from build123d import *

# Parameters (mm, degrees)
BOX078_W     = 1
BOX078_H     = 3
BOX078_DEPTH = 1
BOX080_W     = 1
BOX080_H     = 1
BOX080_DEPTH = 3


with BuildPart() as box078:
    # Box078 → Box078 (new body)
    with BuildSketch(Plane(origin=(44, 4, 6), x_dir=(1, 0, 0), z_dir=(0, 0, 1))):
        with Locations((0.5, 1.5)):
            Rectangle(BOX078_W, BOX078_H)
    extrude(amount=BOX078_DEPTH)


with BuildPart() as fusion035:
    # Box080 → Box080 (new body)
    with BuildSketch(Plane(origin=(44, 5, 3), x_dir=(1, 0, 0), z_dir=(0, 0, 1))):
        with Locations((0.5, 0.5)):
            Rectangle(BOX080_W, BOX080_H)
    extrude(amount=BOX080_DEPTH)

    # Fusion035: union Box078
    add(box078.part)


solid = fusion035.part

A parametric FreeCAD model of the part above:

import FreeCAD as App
import Part
import Sketcher
from FreeCAD import Vector

doc = App.newDocument("Part")
body = doc.addObject("PartDesign::Body", "Body")

sketch1 = body.newObject("Sketcher::SketchObject", "Sketch")
sketch1.AttachmentSupport = (doc.getObject("XY_Plane"), [""])
sketch1.MapMode = "FlatFace"
sketch1.AttachmentOffset = App.Placement(Vector(0, 0, 6), App.Rotation())
sketch1.addGeometry([
    Part.LineSegment(Vector(44, 7, 0), Vector(44, 4, 0)),
    Part.LineSegment(Vector(44, 4, 0), Vector(45, 4, 0)),
    Part.LineSegment(Vector(45, 4, 0), Vector(45, 7, 0)),
    Part.LineSegment(Vector(45, 7, 0), Vector(44, 7, 0)),
], False)
sketch1.addConstraint([
    Sketcher.Constraint("Coincident", 0, 2, 1, 1),
    Sketcher.Constraint("Coincident", 1, 2, 2, 1),
    Sketcher.Constraint("Coincident", 2, 2, 3, 1),
    Sketcher.Constraint("Coincident", 3, 2, 0, 1),
    Sketcher.Constraint("Vertical", 0),
    Sketcher.Constraint("Horizontal", 1),
    Sketcher.Constraint("Vertical", 2),
    Sketcher.Constraint("Horizontal", 3),
    Sketcher.Constraint("DistanceX", 1, 1, 1, 2, 1.0),
    Sketcher.Constraint("DistanceY", 0, 2, 0, 1, 3.0),
    Sketcher.Constraint("DistanceX", -1, 1, 0, 2, 44.0),
    Sketcher.Constraint("DistanceY", -1, 1, 0, 2, 4.0),
])
pad1 = body.newObject("PartDesign::Pad", "Pad")
pad1.Profile = sketch1
pad1.Length = 1
body2 = doc.addObject("PartDesign::Body", "Body001")

sketch2 = body2.newObject("Sketcher::SketchObject", "Sketch001")
sketch2.AttachmentSupport = (doc.getObject("XY_Plane001"), [""])
sketch2.MapMode = "FlatFace"
sketch2.AttachmentOffset = App.Placement(Vector(0, 0, 3), App.Rotation())
sketch2.addGeometry([
    Part.LineSegment(Vector(44, 6, 0), Vector(44, 5, 0)),
    Part.LineSegment(Vector(44, 5, 0), Vector(45, 5, 0)),
    Part.LineSegment(Vector(45, 5, 0), Vector(45, 6, 0)),
    Part.LineSegment(Vector(45, 6, 0), Vector(44, 6, 0)),
], False)
sketch2.addConstraint([
    Sketcher.Constraint("Coincident", 0, 2, 1, 1),
    Sketcher.Constraint("Coincident", 1, 2, 2, 1),
    Sketcher.Constraint("Coincident", 2, 2, 3, 1),
    Sketcher.Constraint("Coincident", 3, 2, 0, 1),
    Sketcher.Constraint("Vertical", 0),
    Sketcher.Constraint("Horizontal", 1),
    Sketcher.Constraint("Vertical", 2),
    Sketcher.Constraint("Horizontal", 3),
    Sketcher.Constraint("Equal", 3, 0),
    Sketcher.Constraint("DistanceX", 1, 1, 1, 2, 1.0),
    Sketcher.Constraint("DistanceX", -1, 1, 0, 2, 44.0),
    Sketcher.Constraint("DistanceY", -1, 1, 0, 2, 5.0),
])
pad2 = body2.newObject("PartDesign::Pad", "Pad001")
pad2.Profile = sketch2
pad2.Length = 3
doc.recompute()

boolean = body2.newObject("PartDesign::Boolean", "Boolean")
boolean.Type = "Fuse"
boolean.addObjects([body])

doc.recompute()
